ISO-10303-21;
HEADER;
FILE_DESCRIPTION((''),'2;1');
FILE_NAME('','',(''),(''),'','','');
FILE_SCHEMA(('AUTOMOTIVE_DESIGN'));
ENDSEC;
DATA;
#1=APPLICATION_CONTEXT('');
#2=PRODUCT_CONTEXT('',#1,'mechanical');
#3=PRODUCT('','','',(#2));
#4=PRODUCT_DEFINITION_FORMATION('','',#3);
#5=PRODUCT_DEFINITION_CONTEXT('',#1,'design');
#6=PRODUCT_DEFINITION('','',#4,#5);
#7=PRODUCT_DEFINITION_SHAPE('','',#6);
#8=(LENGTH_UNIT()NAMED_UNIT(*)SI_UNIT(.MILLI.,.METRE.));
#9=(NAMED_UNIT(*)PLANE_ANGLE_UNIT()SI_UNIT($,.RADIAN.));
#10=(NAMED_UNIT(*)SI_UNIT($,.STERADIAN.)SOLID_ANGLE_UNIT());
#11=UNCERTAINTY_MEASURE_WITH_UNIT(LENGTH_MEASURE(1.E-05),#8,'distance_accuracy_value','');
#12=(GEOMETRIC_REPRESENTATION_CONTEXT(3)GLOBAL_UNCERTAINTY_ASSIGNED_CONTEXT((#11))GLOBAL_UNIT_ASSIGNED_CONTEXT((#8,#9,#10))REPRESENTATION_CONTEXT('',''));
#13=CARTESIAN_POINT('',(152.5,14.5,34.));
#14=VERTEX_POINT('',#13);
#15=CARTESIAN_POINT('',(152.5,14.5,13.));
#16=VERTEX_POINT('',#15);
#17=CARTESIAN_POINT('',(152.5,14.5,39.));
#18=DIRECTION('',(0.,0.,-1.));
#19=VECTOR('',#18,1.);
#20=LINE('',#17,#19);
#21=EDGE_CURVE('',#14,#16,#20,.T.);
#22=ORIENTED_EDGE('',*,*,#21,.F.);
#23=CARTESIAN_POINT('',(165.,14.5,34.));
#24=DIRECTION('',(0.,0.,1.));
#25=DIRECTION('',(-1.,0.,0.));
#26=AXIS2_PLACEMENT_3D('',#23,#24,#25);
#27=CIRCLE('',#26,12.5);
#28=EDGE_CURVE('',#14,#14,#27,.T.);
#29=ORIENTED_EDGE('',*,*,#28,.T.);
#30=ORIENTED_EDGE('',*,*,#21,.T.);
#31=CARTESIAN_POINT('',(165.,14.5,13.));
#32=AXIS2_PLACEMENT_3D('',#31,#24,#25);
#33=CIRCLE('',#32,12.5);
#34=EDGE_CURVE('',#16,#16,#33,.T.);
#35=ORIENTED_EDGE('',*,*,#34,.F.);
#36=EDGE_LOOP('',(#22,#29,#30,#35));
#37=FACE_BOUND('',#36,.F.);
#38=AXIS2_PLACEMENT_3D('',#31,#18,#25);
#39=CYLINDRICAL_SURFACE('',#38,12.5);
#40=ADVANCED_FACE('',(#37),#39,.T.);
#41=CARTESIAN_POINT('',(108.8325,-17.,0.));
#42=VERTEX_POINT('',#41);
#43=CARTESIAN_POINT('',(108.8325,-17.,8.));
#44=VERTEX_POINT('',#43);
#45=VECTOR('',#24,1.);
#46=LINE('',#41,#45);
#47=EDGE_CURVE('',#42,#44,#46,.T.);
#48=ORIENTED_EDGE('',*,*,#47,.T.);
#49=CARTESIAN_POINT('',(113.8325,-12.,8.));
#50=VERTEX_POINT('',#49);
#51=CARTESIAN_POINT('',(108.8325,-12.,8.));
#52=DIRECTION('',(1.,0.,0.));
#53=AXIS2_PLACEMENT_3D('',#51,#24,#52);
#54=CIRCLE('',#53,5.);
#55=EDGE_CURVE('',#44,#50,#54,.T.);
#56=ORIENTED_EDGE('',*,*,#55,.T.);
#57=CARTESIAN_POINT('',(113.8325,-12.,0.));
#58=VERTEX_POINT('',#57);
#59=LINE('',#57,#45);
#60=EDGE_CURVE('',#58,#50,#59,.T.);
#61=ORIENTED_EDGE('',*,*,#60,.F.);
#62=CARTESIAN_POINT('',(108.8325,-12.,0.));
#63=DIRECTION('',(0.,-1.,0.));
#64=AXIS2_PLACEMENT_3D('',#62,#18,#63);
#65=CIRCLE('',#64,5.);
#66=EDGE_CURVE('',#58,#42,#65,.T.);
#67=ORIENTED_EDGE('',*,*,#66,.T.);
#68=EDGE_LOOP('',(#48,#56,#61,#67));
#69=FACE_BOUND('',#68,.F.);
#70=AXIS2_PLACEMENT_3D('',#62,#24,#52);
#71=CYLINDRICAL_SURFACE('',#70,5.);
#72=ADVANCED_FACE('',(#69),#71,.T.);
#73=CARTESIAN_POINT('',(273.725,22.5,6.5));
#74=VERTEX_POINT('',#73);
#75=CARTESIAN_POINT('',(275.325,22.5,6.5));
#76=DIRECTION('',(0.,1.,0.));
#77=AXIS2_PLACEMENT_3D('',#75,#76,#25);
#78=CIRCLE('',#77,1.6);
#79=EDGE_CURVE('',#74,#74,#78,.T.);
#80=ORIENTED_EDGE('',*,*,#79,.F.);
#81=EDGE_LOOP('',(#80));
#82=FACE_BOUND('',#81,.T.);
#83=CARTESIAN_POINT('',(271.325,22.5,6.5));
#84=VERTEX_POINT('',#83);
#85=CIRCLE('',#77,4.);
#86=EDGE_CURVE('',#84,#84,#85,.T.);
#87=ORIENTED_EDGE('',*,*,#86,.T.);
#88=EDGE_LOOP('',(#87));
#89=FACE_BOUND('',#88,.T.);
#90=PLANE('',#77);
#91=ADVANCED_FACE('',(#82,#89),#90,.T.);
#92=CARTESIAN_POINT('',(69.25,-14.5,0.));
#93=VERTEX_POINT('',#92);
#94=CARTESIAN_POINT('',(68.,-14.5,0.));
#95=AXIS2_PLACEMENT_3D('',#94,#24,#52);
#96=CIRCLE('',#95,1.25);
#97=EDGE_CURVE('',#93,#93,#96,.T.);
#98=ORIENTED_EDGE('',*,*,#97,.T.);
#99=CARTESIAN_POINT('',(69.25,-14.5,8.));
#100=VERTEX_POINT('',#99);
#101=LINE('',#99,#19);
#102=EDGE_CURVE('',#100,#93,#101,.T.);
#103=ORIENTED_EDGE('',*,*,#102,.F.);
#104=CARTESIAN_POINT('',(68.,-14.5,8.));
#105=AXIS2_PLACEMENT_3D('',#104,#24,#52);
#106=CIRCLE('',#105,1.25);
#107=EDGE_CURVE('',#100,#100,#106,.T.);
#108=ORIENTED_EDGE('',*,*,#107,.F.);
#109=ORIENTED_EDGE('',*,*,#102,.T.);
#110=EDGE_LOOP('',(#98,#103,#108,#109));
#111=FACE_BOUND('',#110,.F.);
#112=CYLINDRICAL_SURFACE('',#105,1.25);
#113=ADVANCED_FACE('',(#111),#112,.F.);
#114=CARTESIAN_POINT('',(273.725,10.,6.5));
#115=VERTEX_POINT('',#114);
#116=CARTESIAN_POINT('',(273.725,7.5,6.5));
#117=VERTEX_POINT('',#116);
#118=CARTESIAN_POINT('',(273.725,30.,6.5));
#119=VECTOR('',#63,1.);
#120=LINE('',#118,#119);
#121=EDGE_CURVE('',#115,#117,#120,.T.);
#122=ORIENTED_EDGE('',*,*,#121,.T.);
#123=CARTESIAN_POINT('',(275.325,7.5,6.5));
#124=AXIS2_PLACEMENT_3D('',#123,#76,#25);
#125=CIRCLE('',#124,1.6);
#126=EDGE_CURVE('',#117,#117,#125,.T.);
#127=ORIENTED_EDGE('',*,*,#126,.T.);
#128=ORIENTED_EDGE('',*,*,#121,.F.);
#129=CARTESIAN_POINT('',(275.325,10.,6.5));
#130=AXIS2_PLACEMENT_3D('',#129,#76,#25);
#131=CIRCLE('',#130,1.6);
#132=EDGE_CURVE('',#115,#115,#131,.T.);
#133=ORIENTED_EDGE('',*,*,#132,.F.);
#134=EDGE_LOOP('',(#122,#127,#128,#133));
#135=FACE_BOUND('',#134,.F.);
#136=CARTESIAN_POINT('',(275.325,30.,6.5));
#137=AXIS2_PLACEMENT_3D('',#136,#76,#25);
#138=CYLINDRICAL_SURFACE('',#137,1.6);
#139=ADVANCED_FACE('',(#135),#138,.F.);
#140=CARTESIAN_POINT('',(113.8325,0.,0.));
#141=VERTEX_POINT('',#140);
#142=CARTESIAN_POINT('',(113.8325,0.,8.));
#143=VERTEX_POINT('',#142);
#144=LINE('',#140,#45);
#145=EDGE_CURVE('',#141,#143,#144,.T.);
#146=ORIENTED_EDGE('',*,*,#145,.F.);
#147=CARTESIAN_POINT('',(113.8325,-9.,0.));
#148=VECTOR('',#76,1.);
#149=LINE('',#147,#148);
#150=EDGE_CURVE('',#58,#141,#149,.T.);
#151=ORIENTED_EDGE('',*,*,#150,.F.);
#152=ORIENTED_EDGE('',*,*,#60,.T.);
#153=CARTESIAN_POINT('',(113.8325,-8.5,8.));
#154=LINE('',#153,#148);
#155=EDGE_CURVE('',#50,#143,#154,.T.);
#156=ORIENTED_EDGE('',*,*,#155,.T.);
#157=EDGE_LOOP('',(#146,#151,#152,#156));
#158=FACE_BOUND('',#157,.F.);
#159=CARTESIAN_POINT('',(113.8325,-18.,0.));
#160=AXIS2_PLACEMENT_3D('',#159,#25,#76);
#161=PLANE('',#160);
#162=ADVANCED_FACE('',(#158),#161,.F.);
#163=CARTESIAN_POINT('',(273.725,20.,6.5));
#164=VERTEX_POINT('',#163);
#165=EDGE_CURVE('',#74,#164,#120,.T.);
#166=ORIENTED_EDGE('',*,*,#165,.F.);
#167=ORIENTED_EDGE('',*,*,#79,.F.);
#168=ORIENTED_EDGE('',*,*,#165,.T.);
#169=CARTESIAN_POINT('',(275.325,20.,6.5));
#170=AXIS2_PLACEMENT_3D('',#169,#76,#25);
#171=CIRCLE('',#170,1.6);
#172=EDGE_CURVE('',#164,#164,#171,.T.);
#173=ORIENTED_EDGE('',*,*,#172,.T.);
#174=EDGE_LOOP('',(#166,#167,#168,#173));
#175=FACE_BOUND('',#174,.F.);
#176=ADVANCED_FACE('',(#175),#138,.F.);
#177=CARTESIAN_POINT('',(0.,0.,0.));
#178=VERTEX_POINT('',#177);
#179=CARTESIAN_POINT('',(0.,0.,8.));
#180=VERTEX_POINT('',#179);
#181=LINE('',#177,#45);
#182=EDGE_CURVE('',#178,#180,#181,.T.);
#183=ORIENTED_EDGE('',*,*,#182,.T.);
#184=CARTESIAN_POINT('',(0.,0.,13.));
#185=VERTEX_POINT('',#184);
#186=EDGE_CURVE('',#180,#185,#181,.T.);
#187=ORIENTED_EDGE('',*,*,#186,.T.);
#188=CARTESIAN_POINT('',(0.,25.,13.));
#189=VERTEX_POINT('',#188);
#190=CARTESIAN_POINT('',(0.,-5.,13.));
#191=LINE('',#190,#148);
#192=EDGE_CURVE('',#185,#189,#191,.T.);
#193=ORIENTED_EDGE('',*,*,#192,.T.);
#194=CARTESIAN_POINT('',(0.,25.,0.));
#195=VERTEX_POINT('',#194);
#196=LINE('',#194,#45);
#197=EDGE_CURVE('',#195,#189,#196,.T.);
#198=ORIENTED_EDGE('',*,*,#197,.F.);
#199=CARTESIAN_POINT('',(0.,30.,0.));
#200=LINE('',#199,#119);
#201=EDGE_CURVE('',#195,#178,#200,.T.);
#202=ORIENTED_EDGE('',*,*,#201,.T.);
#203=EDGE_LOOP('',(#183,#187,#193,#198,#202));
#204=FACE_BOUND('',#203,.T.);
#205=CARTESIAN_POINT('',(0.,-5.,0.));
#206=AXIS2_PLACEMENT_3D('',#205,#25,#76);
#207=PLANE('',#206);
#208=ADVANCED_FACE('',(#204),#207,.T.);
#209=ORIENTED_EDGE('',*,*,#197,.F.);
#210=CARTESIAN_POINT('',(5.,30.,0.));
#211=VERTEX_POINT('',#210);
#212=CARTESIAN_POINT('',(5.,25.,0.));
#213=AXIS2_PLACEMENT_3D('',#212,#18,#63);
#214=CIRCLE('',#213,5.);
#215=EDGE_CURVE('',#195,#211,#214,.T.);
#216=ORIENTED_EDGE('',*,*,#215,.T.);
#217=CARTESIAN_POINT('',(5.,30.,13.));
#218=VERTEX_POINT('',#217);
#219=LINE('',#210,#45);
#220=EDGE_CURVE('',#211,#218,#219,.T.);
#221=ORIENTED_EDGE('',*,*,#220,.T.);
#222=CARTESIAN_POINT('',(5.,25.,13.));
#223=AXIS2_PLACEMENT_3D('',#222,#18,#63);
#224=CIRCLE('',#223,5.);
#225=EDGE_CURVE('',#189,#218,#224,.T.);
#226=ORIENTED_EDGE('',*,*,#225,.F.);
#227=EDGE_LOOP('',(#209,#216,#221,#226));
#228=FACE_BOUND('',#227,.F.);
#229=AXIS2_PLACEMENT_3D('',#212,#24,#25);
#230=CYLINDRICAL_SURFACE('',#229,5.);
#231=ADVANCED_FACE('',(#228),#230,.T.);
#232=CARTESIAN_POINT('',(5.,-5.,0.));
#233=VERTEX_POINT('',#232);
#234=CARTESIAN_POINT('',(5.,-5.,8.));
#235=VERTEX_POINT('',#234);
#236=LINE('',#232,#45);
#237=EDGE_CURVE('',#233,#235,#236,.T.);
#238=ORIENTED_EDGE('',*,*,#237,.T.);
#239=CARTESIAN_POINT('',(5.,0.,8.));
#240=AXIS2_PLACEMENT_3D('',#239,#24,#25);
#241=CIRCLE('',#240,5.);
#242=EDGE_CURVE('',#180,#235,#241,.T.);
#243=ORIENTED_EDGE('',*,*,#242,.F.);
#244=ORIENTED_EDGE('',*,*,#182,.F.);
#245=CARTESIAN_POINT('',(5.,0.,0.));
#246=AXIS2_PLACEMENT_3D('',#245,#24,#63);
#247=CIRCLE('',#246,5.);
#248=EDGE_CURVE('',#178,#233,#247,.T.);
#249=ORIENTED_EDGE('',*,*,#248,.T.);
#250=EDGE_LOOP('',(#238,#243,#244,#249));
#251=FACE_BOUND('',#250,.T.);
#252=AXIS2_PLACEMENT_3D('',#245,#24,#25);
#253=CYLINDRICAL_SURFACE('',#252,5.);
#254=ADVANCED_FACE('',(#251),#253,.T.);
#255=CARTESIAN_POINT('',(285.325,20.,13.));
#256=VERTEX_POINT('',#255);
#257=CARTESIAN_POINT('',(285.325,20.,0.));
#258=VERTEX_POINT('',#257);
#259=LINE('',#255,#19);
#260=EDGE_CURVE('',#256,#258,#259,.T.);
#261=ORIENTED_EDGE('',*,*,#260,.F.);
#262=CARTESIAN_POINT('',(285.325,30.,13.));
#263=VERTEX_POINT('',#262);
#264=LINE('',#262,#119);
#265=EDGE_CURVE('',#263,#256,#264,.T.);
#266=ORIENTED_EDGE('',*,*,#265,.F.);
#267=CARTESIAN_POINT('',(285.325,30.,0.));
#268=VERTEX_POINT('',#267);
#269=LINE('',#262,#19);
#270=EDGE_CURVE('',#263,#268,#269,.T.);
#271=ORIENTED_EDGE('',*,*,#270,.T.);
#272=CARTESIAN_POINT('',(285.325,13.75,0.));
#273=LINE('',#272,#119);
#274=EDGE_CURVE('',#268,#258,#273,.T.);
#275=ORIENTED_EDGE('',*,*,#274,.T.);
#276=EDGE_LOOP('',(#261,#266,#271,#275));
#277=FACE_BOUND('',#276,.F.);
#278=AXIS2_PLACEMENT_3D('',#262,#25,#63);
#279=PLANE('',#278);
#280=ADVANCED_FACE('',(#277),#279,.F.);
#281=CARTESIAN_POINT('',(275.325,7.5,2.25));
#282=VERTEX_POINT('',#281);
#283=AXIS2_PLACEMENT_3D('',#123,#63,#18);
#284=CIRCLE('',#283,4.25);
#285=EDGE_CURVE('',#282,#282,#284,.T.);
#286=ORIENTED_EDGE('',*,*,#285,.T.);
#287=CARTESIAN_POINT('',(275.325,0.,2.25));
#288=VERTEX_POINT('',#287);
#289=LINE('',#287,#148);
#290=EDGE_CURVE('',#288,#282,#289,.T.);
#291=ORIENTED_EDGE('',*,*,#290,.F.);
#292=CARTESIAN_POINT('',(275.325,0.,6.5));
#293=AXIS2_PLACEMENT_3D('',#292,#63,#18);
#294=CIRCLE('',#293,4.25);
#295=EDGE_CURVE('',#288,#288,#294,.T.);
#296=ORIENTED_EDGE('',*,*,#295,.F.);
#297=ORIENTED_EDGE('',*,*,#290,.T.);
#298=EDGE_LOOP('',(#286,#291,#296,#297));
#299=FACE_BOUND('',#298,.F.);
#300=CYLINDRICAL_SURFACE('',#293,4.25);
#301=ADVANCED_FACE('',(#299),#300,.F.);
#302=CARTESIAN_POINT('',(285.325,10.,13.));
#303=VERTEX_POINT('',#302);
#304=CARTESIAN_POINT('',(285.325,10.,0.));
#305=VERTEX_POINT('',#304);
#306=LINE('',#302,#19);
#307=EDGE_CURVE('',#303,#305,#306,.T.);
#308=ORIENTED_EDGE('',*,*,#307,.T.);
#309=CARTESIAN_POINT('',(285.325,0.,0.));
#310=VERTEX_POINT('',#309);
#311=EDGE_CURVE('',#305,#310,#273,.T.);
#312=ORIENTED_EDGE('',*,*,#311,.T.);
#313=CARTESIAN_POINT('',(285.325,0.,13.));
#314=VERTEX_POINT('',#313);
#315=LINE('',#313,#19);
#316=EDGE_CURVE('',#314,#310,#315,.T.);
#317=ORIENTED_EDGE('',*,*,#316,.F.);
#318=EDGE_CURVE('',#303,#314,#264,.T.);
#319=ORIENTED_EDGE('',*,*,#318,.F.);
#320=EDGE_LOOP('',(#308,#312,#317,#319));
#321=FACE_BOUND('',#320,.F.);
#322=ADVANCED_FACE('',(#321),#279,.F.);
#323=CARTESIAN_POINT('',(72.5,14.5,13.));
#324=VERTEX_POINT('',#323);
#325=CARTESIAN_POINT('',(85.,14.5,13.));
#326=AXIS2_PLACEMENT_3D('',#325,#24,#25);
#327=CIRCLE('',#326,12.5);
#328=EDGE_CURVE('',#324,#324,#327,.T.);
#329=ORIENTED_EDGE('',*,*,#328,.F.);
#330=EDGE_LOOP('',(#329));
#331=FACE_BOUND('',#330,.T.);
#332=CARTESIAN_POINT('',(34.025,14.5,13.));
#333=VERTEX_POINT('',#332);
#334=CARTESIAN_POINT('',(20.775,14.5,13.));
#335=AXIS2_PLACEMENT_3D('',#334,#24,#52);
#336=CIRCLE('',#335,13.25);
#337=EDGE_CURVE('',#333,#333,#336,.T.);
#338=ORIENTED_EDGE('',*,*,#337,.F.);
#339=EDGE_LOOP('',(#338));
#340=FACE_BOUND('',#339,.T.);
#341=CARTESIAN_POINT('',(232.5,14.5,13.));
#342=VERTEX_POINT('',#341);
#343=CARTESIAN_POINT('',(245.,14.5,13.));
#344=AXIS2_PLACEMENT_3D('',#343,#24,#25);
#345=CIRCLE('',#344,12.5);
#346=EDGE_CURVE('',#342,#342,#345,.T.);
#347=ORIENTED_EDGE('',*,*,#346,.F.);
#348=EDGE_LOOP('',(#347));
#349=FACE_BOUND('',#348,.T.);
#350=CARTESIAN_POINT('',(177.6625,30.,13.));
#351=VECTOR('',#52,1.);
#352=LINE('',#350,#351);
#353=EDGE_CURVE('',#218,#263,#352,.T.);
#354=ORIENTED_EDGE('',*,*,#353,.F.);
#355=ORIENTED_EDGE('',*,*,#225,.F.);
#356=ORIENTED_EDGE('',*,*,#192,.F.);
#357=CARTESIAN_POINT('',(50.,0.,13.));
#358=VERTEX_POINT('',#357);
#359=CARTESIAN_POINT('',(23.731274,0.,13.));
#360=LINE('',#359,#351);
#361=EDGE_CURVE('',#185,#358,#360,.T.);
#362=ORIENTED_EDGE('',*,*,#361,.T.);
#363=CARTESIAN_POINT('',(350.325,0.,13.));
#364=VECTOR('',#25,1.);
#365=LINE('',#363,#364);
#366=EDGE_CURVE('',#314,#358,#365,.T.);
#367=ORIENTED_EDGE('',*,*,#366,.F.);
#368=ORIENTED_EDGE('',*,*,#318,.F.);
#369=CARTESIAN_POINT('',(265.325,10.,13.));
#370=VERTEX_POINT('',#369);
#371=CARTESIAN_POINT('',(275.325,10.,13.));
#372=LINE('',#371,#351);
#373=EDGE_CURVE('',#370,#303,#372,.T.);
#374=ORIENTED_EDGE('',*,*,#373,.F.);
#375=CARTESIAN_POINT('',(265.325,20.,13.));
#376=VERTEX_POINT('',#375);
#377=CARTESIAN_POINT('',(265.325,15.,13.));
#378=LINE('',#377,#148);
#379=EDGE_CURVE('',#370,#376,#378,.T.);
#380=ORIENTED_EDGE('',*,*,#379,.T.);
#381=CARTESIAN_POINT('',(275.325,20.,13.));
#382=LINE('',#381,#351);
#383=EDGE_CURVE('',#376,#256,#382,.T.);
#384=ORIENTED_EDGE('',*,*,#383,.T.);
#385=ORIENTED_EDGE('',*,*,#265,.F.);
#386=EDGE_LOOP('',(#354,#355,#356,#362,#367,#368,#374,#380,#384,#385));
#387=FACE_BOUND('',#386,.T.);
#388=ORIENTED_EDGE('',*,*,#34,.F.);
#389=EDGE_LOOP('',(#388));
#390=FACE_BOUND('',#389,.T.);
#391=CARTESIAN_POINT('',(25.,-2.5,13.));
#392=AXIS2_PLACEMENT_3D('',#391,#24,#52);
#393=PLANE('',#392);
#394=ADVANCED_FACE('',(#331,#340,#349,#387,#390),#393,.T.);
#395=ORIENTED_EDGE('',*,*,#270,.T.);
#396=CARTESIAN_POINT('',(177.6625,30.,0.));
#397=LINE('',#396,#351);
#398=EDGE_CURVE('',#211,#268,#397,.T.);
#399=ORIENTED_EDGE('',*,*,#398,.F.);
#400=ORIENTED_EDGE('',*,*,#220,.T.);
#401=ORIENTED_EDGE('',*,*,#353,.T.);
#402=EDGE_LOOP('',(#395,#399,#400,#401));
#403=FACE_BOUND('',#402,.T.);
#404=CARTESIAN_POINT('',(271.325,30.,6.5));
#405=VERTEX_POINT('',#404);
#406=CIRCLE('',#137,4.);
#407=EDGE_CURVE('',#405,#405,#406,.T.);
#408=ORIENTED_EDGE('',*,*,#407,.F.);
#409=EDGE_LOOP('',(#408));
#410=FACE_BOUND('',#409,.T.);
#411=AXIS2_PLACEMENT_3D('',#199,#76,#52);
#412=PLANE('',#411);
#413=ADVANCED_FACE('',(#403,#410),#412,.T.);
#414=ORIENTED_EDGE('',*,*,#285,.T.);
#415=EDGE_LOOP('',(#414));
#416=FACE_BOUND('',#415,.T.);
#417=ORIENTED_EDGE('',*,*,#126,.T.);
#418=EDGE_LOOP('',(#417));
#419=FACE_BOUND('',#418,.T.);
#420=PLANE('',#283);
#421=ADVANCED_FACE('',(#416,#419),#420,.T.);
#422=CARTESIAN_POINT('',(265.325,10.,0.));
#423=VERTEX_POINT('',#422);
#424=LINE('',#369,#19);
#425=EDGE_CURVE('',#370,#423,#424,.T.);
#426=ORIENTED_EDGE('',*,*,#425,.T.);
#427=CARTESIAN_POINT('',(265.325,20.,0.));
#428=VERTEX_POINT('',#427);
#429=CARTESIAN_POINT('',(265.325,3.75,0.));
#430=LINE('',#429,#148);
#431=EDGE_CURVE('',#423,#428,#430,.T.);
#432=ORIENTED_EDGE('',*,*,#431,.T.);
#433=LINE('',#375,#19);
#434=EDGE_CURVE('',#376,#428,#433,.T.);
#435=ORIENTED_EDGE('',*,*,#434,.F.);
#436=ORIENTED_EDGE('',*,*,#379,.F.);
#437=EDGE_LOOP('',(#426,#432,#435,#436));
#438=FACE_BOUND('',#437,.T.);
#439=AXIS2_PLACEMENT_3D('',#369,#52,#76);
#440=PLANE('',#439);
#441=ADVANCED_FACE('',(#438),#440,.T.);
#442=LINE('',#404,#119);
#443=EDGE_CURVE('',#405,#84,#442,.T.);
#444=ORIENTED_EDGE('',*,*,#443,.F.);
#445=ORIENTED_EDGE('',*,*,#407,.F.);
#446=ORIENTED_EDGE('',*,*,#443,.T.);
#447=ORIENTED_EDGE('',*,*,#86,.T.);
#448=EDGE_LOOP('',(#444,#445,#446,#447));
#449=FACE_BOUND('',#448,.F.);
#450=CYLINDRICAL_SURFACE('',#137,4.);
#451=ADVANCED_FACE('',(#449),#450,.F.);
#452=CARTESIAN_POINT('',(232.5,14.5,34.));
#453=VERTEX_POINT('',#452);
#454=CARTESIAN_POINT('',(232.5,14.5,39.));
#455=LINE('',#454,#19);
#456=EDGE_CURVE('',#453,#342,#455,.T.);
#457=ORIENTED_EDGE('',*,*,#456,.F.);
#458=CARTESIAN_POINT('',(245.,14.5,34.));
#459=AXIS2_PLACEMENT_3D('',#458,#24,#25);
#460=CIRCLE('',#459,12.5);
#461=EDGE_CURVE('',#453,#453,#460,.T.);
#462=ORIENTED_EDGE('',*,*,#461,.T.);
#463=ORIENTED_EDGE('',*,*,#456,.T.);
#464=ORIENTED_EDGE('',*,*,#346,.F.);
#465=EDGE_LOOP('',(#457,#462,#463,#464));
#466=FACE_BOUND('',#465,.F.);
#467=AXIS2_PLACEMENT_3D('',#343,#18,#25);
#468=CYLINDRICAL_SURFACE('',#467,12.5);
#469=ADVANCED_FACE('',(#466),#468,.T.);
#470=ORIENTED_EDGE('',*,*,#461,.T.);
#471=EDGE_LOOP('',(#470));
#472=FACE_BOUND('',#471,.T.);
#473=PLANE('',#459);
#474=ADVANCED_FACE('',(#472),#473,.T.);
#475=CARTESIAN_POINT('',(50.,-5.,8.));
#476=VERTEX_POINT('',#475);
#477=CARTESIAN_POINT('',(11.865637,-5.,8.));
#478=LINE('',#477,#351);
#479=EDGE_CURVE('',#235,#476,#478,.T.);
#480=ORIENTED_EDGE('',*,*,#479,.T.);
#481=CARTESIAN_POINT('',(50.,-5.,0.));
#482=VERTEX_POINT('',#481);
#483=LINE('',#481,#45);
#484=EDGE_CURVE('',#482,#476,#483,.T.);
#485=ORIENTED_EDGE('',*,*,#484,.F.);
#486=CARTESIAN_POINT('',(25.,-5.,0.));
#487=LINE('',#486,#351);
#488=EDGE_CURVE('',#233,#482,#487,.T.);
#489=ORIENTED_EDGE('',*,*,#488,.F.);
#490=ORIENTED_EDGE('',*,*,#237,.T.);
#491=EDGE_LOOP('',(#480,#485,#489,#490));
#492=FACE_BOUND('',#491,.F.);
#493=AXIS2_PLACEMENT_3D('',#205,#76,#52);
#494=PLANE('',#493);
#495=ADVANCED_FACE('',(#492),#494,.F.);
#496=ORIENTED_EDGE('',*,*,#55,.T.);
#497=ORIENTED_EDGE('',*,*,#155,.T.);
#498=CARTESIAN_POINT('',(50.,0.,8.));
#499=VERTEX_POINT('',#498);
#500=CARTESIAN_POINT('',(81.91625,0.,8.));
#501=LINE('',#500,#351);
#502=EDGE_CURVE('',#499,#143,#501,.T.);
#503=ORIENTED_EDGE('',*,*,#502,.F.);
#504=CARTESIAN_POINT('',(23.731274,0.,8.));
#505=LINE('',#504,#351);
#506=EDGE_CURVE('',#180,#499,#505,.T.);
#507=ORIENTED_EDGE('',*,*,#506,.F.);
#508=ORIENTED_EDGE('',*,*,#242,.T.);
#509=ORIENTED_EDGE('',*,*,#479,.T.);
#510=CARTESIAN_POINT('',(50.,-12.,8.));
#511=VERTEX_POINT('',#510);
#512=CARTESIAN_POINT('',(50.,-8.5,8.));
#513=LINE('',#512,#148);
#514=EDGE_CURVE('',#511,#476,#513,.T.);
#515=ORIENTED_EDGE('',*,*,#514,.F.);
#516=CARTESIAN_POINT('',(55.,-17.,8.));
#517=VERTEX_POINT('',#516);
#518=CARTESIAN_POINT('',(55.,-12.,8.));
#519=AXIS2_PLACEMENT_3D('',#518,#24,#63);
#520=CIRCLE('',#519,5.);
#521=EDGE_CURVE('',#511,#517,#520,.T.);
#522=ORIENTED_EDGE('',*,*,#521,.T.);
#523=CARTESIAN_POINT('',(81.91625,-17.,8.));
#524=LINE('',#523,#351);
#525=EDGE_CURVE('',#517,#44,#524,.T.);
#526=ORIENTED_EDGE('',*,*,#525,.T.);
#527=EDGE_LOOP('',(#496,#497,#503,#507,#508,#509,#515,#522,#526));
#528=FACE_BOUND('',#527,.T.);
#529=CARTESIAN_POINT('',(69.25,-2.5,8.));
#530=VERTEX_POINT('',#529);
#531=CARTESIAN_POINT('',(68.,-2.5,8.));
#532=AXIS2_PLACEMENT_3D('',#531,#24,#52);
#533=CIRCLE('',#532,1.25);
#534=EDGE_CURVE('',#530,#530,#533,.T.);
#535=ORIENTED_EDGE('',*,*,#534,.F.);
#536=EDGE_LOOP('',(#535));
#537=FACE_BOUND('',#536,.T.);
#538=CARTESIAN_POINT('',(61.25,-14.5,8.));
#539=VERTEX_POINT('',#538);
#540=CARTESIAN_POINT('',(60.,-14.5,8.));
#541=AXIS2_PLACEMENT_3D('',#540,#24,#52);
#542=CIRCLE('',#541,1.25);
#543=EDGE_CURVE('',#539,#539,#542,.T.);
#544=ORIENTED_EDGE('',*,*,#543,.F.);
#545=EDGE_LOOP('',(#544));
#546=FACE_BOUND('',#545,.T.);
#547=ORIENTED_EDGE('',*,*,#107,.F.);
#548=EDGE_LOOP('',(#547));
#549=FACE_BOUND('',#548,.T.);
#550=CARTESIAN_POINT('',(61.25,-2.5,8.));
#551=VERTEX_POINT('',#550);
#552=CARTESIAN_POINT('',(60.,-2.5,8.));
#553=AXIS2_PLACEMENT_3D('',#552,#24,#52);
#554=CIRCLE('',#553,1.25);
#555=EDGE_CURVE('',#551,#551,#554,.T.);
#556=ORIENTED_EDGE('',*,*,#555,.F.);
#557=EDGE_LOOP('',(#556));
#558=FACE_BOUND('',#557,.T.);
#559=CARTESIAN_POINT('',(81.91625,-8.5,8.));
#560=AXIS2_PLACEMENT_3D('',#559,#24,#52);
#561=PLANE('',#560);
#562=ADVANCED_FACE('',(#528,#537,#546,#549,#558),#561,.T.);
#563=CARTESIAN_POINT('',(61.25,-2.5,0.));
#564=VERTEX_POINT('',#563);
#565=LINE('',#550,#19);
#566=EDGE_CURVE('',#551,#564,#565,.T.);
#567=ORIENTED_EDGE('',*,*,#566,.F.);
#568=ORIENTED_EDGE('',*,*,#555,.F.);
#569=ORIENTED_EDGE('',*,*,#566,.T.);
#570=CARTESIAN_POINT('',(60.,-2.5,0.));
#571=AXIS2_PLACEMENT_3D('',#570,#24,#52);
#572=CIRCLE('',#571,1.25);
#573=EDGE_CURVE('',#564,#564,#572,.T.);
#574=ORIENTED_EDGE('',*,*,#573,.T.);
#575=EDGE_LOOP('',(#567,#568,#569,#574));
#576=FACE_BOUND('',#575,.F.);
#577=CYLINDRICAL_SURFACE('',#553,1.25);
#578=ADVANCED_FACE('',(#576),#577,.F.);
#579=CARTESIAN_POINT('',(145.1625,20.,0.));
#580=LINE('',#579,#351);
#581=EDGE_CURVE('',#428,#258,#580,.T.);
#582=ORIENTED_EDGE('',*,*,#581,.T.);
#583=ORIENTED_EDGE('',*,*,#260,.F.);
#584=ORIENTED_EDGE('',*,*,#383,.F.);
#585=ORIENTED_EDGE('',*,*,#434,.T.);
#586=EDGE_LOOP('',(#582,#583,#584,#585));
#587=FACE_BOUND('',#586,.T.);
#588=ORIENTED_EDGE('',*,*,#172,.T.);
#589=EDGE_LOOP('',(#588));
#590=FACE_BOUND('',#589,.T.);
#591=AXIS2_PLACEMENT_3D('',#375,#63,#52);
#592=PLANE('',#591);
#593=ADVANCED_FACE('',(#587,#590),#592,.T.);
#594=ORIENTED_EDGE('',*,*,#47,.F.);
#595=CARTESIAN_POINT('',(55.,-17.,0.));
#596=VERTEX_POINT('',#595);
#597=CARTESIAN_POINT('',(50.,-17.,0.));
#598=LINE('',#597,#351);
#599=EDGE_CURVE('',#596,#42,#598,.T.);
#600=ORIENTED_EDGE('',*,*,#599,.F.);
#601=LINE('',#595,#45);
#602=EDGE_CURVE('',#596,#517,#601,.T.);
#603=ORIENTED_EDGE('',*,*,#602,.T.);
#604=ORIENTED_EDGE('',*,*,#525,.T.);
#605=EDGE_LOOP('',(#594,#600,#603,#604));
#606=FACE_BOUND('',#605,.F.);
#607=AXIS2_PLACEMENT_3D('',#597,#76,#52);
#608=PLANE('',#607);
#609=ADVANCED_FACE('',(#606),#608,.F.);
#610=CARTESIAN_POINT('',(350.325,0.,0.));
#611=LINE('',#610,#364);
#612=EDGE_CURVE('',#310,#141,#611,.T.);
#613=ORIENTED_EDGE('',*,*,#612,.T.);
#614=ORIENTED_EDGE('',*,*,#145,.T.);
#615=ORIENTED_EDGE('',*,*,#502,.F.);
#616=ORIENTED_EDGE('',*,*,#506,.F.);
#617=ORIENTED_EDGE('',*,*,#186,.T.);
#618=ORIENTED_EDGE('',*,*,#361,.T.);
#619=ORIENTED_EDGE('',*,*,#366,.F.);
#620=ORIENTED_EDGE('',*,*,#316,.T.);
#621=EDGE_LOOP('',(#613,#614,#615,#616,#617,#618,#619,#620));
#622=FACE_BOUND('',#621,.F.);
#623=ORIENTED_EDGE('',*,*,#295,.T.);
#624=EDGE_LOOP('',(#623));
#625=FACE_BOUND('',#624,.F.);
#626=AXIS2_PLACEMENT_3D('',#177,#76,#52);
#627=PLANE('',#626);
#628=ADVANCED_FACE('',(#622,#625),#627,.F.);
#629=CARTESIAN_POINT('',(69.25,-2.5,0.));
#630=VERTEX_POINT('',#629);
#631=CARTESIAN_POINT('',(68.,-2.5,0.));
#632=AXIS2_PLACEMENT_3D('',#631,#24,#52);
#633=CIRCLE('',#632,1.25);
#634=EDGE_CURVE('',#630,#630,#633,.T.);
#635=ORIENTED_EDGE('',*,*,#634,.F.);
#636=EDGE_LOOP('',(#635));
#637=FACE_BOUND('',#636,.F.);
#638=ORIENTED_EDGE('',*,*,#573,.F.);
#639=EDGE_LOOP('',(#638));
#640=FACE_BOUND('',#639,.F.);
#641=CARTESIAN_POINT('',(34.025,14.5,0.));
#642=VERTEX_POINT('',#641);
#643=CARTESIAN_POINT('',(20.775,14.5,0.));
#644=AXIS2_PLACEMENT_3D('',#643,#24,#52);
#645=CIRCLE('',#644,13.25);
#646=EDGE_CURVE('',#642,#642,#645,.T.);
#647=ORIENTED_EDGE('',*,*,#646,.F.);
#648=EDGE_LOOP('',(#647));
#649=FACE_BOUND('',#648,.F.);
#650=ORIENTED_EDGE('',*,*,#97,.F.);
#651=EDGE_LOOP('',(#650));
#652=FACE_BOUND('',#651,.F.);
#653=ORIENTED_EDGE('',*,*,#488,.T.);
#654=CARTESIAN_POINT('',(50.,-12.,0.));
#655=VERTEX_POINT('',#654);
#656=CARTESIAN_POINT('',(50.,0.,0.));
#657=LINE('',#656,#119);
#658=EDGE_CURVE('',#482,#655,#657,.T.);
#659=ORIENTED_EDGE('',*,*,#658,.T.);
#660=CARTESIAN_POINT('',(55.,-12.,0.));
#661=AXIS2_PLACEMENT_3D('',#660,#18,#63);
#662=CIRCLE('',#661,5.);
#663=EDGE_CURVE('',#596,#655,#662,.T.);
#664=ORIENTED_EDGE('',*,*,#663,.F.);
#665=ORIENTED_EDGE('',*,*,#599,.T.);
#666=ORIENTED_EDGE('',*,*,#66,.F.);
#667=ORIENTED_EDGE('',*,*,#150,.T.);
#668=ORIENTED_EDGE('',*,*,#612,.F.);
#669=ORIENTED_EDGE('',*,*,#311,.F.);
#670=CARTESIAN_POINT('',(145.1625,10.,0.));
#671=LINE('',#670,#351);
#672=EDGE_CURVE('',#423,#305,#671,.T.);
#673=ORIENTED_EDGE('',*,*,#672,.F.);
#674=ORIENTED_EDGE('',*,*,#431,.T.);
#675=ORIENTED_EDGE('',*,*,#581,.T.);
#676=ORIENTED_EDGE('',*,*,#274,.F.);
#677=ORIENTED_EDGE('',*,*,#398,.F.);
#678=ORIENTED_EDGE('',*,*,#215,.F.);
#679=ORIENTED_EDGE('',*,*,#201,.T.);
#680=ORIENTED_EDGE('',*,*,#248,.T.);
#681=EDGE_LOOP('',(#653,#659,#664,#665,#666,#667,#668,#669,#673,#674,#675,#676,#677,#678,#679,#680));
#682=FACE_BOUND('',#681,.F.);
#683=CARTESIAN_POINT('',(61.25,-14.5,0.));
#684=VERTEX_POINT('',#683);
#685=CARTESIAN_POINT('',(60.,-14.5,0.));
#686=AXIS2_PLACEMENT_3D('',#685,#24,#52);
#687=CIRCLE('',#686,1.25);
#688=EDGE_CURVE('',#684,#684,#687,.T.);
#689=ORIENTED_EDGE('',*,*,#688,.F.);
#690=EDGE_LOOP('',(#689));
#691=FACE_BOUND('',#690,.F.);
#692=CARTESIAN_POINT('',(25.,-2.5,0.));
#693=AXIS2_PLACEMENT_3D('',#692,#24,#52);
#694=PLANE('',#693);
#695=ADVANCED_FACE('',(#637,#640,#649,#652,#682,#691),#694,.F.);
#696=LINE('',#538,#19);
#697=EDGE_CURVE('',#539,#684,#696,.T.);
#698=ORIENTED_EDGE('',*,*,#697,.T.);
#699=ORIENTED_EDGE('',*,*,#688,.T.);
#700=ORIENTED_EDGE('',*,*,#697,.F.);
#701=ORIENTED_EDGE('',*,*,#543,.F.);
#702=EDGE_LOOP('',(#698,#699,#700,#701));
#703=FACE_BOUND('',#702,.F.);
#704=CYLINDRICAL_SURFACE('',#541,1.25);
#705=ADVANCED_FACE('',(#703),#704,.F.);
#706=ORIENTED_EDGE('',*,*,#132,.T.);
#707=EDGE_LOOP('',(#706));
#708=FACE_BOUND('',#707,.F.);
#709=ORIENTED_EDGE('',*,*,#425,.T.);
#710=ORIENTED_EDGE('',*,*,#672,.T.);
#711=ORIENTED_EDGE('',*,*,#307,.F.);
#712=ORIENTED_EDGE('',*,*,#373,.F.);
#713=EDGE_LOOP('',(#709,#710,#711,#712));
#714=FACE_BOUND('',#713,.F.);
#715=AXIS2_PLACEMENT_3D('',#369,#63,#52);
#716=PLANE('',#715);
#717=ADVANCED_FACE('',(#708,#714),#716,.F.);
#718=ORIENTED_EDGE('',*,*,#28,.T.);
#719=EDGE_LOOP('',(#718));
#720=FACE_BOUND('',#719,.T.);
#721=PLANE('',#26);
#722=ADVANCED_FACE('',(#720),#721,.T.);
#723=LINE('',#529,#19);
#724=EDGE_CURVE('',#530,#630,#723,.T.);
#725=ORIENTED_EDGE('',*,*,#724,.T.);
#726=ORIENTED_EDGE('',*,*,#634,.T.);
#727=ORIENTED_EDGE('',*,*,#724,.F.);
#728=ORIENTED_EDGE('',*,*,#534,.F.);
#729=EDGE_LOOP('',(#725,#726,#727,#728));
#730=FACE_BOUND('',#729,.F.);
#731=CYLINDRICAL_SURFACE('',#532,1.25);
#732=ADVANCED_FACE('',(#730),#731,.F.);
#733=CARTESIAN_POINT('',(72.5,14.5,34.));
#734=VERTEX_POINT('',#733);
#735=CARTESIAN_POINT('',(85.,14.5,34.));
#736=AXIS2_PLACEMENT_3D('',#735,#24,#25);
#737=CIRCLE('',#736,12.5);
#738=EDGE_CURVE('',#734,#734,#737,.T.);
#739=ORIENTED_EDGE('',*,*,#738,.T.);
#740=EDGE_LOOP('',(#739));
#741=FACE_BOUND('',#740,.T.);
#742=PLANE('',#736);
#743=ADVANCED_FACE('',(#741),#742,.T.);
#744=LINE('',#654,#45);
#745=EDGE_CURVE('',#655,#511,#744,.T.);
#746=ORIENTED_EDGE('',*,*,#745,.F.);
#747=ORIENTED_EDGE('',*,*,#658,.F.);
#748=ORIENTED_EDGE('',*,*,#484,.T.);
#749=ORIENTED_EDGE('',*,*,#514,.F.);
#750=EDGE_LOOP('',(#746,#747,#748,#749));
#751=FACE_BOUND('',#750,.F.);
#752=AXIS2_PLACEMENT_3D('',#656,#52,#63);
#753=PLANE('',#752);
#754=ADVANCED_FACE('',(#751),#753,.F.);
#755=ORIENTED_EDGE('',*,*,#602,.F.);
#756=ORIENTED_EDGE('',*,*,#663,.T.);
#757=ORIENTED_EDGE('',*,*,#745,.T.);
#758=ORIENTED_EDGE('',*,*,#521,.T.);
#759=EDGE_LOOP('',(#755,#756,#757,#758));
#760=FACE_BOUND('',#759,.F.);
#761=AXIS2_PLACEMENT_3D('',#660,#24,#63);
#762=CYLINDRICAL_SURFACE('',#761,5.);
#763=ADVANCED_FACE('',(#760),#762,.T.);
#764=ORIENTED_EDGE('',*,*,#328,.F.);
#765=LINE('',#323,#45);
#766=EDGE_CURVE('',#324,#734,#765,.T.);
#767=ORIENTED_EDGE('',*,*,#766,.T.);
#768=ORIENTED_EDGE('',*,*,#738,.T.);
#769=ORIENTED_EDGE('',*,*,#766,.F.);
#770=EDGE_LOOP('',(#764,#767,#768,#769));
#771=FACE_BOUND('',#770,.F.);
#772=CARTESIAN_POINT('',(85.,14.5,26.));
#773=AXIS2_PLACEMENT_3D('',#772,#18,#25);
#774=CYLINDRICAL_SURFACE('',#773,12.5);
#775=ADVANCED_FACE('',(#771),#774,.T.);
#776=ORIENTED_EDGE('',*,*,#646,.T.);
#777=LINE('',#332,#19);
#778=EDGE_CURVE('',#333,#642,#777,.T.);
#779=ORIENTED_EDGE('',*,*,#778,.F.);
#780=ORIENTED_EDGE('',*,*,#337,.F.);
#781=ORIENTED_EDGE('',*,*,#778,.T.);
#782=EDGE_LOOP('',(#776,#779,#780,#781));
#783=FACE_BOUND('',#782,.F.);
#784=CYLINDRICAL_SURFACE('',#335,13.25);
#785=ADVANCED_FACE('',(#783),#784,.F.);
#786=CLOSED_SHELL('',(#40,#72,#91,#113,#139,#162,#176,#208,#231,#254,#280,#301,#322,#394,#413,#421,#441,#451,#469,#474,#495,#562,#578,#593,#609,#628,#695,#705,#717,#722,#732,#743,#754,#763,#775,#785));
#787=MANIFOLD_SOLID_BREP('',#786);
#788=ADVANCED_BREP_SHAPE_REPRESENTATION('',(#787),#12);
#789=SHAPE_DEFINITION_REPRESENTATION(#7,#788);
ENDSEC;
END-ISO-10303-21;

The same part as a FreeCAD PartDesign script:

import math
import FreeCAD as App
import Part
import Sketcher

V = App.Vector


def edges_at(feature, points):
    """Names of the edges that pass closest to the given points."""
    edges = feature.Shape.Edges
    near = lambda p: min(range(len(edges)), key=lambda i: edges[i].distToShape(Part.Vertex(*p))[0])
    return sorted({f"Edge{near(p) + 1}" for p in points})


def add_polygon(sketch, points):
    """Adds a closed chain of lines whose ends are joined by coincident constraints."""
    first, n = sketch.GeometryCount, len(points)
    for a, b in zip(points, points[1:] + points[:1]):
        sketch.addGeometry(Part.LineSegment(App.Vector(*a, 0), App.Vector(*b, 0)), False)
    for i in range(n):
        sketch.addConstraint(Sketcher.Constraint("Coincident", first + i, 2, first + (i + 1) % n, 1))

doc = App.newDocument("Part")
body = doc.addObject("PartDesign::Body", "Body")

# Sketch on XY plane
sketch1 = body.newObject("Sketcher::SketchObject", "Sketch")
sketch1.AttachmentSupport = (doc.getObject("XY_Plane"), [""])
sketch1.MapMode = "FlatFace"
add_polygon(sketch1, [(0, 30), (0, -5), (50, -5), (50, -17), (177.7, -17), (177.7, 0), (355.3, 0), (355.3, 30)])  # lines 0-7
sketch1.addGeometry(Part.Circle(V(20.8, 14.5, 0), V(0, 0, 1), 12.5), False)  # 8
sketch1.addGeometry(Part.Circle(V(334.6, 14.5, 0), V(0, 0, 1), 12.5), False)  # 9
sketch1.addGeometry(Part.Circle(V(68, -2.5, 0), V(0, 0, 1), 1), False)  # 10
sketch1.addGeometry(Part.Circle(V(60, -2.5, 0), V(0, 0, 1), 1), False)  # 11
sketch1.addGeometry(Part.Circle(V(60, -14.5, 0), V(0, 0, 1), 1), False)  # 12
sketch1.addGeometry(Part.Circle(V(68, -14.5, 0), V(0, 0, 1), 1), False)  # 13
sketch1.addConstraint([
    Sketcher.Constraint("Vertical", 0),
    Sketcher.Constraint("Horizontal", 1),
    Sketcher.Constraint("Vertical", 2),
    Sketcher.Constraint("Horizontal", 3),
    Sketcher.Constraint("Vertical", 4),
    Sketcher.Constraint("Horizontal", 5),
    Sketcher.Constraint("Vertical", 6),
    Sketcher.Constraint("Horizontal", 7),
    Sketcher.Constraint("Equal", 8, 9),
    Sketcher.Constraint("Equal", 10, 11),
    Sketcher.Constraint("Equal", 11, 12),
    Sketcher.Constraint("Equal", 12, 13),
    Sketcher.Constraint("PointOnObject", 0, 2, -2),
    Sketcher.Constraint("PointOnObject", 4, 2, -1),
    Sketcher.Constraint("Horizontal", 8, 3, 9, 3),
    Sketcher.Constraint("Horizontal", 10, 3, 11, 3),
    Sketcher.Constraint("Horizontal", 12, 3, 13, 3),
    Sketcher.Constraint("Vertical", 11, 3, 12, 3),
    Sketcher.Constraint("Vertical", 10, 3, 13, 3),
    Sketcher.Constraint("Diameter", 8, 25.0),
    Sketcher.Constraint("Diameter", 10, 2.0),
    Sketcher.Constraint("DistanceX", 1, 1, 1, 2, 50.0),
    Sketcher.Constraint("DistanceY", 0, 2, 0, 1, 35.0),
    Sketcher.Constraint("DistanceY", 2, 2, 2, 1, 12.0),
    Sketcher.Constraint("DistanceY", 4, 1, 4, 2, 17.0),
    Sketcher.Constraint("DistanceX", -1, 1, 10, 3, 68.0),
    Sketcher.Constraint("DistanceX", -1, 1, 11, 3, 60.0),
    Sketcher.Constraint("DistanceY", 10, 3, 8, 3, 17.0),
    Sketcher.Constraint("DistanceY", 12, 3, 11, 3, 12.0),
    Sketcher.Constraint("DistanceY", -1, 1, 8, 3, 14.5),
    Sketcher.Constraint("DistanceX", 7, 2, 7, 1, 355.325),
    Sketcher.Constraint("DistanceX", -1, 1, 9, 3, 334.55),
    Sketcher.Constraint("DistanceX", 3, 1, 3, 2, 127.6625),
    Sketcher.Constraint("DistanceX", -1, 1, 8, 3, 20.775),
])
pad1 = body.newObject("PartDesign::Pad", "Pad")
pad1.Profile = sketch1
pad1.Length = 13
doc.recompute()

fillet = body.newObject("PartDesign::Fillet", "Fillet")
fillet.Base = (pad1, edges_at(pad1, [
    (0, -5, 6.5),
    (0, 30, 6.5),
    (355.325, 30, 6.5),
    (355.325, 0, 6.5),
    (177.662, -17, 6.5),
    (50, -17, 6.5),
]))
fillet.Radius = 5

# Sketch on XY plane
sketch2 = body.newObject("Sketcher::SketchObject", "Sketch001")
sketch2.AttachmentSupport = (doc.getObject("XY_Plane"), [""])
sketch2.MapMode = "FlatFace"
sketch2.AttachmentOffset = App.Placement(V(0, 0, 13), App.Rotation())
sketch2.addGeometry([
    Part.Circle(V(85, 14, 0), V(0, 0, 1), 12),
    Part.Circle(V(165, 14, 0), V(0, 0, 1), 12),
    Part.Circle(V(245, 14, 0), V(0, 0, 1), 12),
], False)
sketch2.addConstraint([
    Sketcher.Constraint("Equal", 0, 1),
    Sketcher.Constraint("Equal", 1, 2),
    Sketcher.Constraint("Horizontal", 0, 3, 1, 3),
    Sketcher.Constraint("Horizontal", 1, 3, 2, 3),
    Sketcher.Constraint("Diameter", 0, 25.0),
    Sketcher.Constraint("DistanceX", -1, 1, 0, 3, 85.0),
    Sketcher.Constraint("DistanceX", -1, 1, 1, 3, 165.0),
    Sketcher.Constraint("DistanceX", -1, 1, 2, 3, 245.0),
    Sketcher.Constraint("DistanceY", -1, 1, 0, 3, 14.5),
])
pad2 = body.newObject("PartDesign::Pad", "Pad001")
pad2.Profile = sketch2
pad2.Length = 13

# Sketch on XY plane
sketch3 = body.newObject("Sketcher::SketchObject", "Sketch002")
sketch3.AttachmentSupport = (doc.getObject("XY_Plane"), [""])
sketch3.MapMode = "FlatFace"
sketch3.addGeometry(Part.Circle(V(68, -2.5, 0), V(0, 0, 1), 1.4), False)
sketch3.addConstraint([
    Sketcher.Constraint("Diameter", 0, 2.85),
    Sketcher.Constraint("DistanceX", -1, 1, 0, 3, 68.0),
    Sketcher.Constraint("DistanceY", 0, 3, -1, 1, 2.5),
])
pocket1 = body.newObject("PartDesign::Pocket", "Pocket")
pocket1.Profile = sketch3
pocket1.Length = 13
pocket1.Reversed = True

# Sketch on XY plane
sketch4 = body.newObject("Sketcher::SketchObject", "Sketch003")
sketch4.AttachmentSupport = (doc.getObject("XY_Plane"), [""])
sketch4.MapMode = "FlatFace"
sketch4.addGeometry(Part.Circle(V(60, -2.5, 0), V(0, 0, 1), 1.4), False)
sketch4.addConstraint([
    Sketcher.Constraint("Diameter", 0, 2.85),
    Sketcher.Constraint("DistanceX", -1, 1, 0, 3, 60.0),
    Sketcher.Constraint("DistanceY", 0, 3, -1, 1, 2.5),
])
pocket2 = body.newObject("PartDesign::Pocket", "Pocket001")
pocket2.Profile = sketch4
pocket2.Length = 13
pocket2.Reversed = True

# Sketch on XY plane
sketch5 = body.newObject("Sketcher::SketchObject", "Sketch004")
sketch5.AttachmentSupport = (doc.getObject("XY_Plane"), [""])
sketch5.MapMode = "FlatFace"
sketch5.addGeometry(Part.Circle(V(60, -14.5, 0), V(0, 0, 1), 1.4), False)
sketch5.addConstraint([
    Sketcher.Constraint("Diameter", 0, 2.85),
    Sketcher.Constraint("DistanceX", -1, 1, 0, 3, 60.0),
    Sketcher.Constraint("DistanceY", 0, 3, -1, 1, 14.5),
])
pocket3 = body.newObject("PartDesign::Pocket", "Pocket002")
pocket3.Profile = sketch5
pocket3.Length = 13
pocket3.Reversed = True

# Sketch on XY plane
sketch6 = body.newObject("Sketcher::SketchObject", "Sketch005")
sketch6.AttachmentSupport = (doc.getObject("XY_Plane"), [""])
sketch6.MapMode = "FlatFace"
sketch6.addGeometry(Part.Circle(V(68, -14.5, 0), V(0, 0, 1), 1.4), False)
sketch6.addConstraint([
    Sketcher.Constraint("Diameter", 0, 2.85),
    Sketcher.Constraint("DistanceX", -1, 1, 0, 3, 68.0),
    Sketcher.Constraint("DistanceY", 0, 3, -1, 1, 14.5),
])
pocket4 = body.newObject("PartDesign::Pocket", "Pocket003")
pocket4.Profile = sketch6
pocket4.Length = 13
pocket4.Reversed = True

# Sketch on XY plane
sketch7 = body.newObject("Sketcher::SketchObject", "Sketch006")
sketch7.AttachmentSupport = (doc.getObject("XY_Plane"), [""])
sketch7.MapMode = "FlatFace"
add_polygon(sketch7, [(178, 0), (178, -18), (114, -18), (114, 0)])  # lines 0-3
sketch7.addConstraint([
    Sketcher.Constraint("Vertical", 0),
    Sketcher.Constraint("Horizontal", 1),
    Sketcher.Constraint("Vertical", 2),
    Sketcher.Constraint("Horizontal", 3),
    Sketcher.Constraint("PointOnObject", 2, 2, -1),
    Sketcher.Constraint("DistanceY", 0, 2, 0, 1, 18.0),
    Sketcher.Constraint("DistanceX", 1, 2, 1, 1, 63.83),
    Sketcher.Constraint("DistanceX", -1, 1, 0, 2, 177.6625),
])
pocket5 = body.newObject("PartDesign::Pocket", "Pocket004")
pocket5.Profile = sketch7
pocket5.Type = "ThroughAll"
pocket5.Reversed = True
doc.recompute()

fillet2 = body.newObject("PartDesign::Fillet", "Fillet001")
fillet2.Base = (pocket5, edges_at(pocket5, [(113.832, -17, 6.5)]))
fillet2.Radius = 5

# Sketch on XY plane
sketch8 = body.newObject("Sketcher::SketchObject", "Sketch007")
sketch8.AttachmentSupport = (doc.getObject("XY_Plane"), [""])
sketch8.MapMode = "FlatFace"
sketch8.AttachmentOffset = App.Placement(V(0, 0, 13), App.Rotation())
add_polygon(sketch8, [(50, 0), (50, -17), (114, -17), (114, 0)])  # lines 0-3
sketch8.addConstraint([
    Sketcher.Constraint("Vertical", 0),
    Sketcher.Constraint("Horizontal", 1),
    Sketcher.Constraint("Vertical", 2),
    Sketcher.Constraint("Horizontal", 3),
    Sketcher.Constraint("PointOnObject", 2, 2, -1),
    Sketcher.Constraint("DistanceY", 0, 2, 0, 1, 17.0),
    Sketcher.Constraint("DistanceX", -1, 1, 0, 2, 50.0),
    Sketcher.Constraint("DistanceX", 1, 1, 1, 2, 63.8325),
])
pocket6 = body.newObject("PartDesign::Pocket", "Pocket005")
pocket6.Profile = sketch8
pocket6.Length = 5

# Sketch on XY plane
sketch9 = body.newObject("Sketcher::SketchObject", "Sketch008")
sketch9.AttachmentSupport = (doc.getObject("XY_Plane"), [""])
sketch9.MapMode = "FlatFace"
sketch9.AttachmentOffset = App.Placement(V(0, 0, 8), App.Rotation())
sketch9.addGeometry([
    Part.Circle(V(60, -14.5, 0), V(0, 0, 1), 2.2),  # 0
    Part.Circle(V(60, -14.5, 0), V(0, 0, 1), 1),  # 1
    Part.Circle(V(60, -2.5, 0), V(0, 0, 1), 2.1),  # 2
    Part.Circle(V(60, -2.5, 0), V(0, 0, 1), 1),  # 3
    Part.Circle(V(68, -2.5, 0), V(0, 0, 1), 1.9),  # 4
    Part.Circle(V(68, -2.5, 0), V(0, 0, 1), 1),  # 5
    Part.Circle(V(68, -14.5, 0), V(0, 0, 1), 2.4),  # 6
    Part.Circle(V(68, -14.5, 0), V(0, 0, 1), 1),  # 7
], False)
sketch9.addConstraint([
    Sketcher.Constraint("Coincident", 1, 3, 0, 3),
    Sketcher.Constraint("Coincident", 3, 3, 2, 3),
    Sketcher.Constraint("Coincident", 5, 3, 4, 3),
    Sketcher.Constraint("Coincident", 7, 3, 6, 3),
    Sketcher.Constraint("Equal", 1, 3),
    Sketcher.Constraint("Equal", 3, 5),
    Sketcher.Constraint("Equal", 5, 7),
    Sketcher.Constraint("Horizontal", 3, 3, 4, 3),
    Sketcher.Constraint("Horizontal", 1, 3, 6, 3),
    Sketcher.Constraint("Vertical", 1, 3, 2, 3),
    Sketcher.Constraint("Vertical", 5, 3, 6, 3),
    Sketcher.Constraint("Diameter", 1, 2.0),
    Sketcher.Constraint("DistanceX", -1, 1, 0, 3, 60.0),
    Sketcher.Constraint("DistanceX", -1, 1, 4, 3, 68.0),
    Sketcher.Constraint("DistanceY", 0, 3, 2, 3, 12.0),
    Sketcher.Constraint("DistanceY", 0, 3, -1, 1, 14.5),
    Sketcher.Constraint("Diameter", 2, 4.234271),
    Sketcher.Constraint("Diameter", 4, 3.832208),
    Sketcher.Constraint("Diameter", 0, 4.319128),
    Sketcher.Constraint("Diameter", 6, 4.831883),
])
pad3 = body.newObject("PartDesign::Pad", "Pad002")
pad3.Profile = sketch9
pad3.Length = 8
pad3.Reversed = True

# Sketch on XY plane
sketch10 = body.newObject("Sketcher::SketchObject", "Sketch009")
sketch10.AttachmentSupport = (doc.getObject("XY_Plane"), [""])
sketch10.MapMode = "FlatFace"
sketch10.AttachmentOffset = App.Placement(V(0, 0, 26), App.Rotation())
sketch10.addGeometry([
    Part.Circle(V(85, 14, 0), V(0, 0, 1), 12),
    Part.Circle(V(165, 14, 0), V(0, 0, 1), 12),
    Part.Circle(V(245, 14, 0), V(0, 0, 1), 12),
], False)
sketch10.addConstraint([
    Sketcher.Constraint("Equal", 0, 1),
    Sketcher.Constraint("Equal", 1, 2),
    Sketcher.Constraint("Horizontal", 0, 3, 1, 3),
    Sketcher.Constraint("Horizontal", 1, 3, 2, 3),
    Sketcher.Constraint("Diameter", 0, 25.0),
    Sketcher.Constraint("DistanceX", -1, 1, 0, 3, 85.0),
    Sketcher.Constraint("DistanceX", -1, 1, 1, 3, 165.0),
    Sketcher.Constraint("DistanceX", -1, 1, 2, 3, 245.0),
    Sketcher.Constraint("DistanceY", -1, 1, 0, 3, 14.5),
])
pad4 = body.newObject("PartDesign::Pad", "Pad003")
pad4.Profile = sketch10
pad4.Length = 13

# Sketch on XY plane
sketch11 = body.newObject("Sketcher::SketchObject", "Sketch010")
sketch11.AttachmentSupport = (doc.getObject("XY_Plane"), [""])
sketch11.MapMode = "FlatFace"
sketch11.AttachmentOffset = App.Placement(V(0, 0, 13), App.Rotation())
sketch11.addGeometry([
    Part.LineSegment(V(265, 20, 0), V(265, 10, 0)),  # 0
    Part.LineSegment(V(265, 10, 0), V(285, 10, 0)),  # 1
    Part.LineSegment(V(285, 10, 0), V(285, 0, 0)),  # 2
    Part.LineSegment(V(285, 0, 0), V(350, 0, 0)),  # 3
    Part.ArcOfCircle(Part.Circle(V(350, 5, 0), V(0, 0, 1), 5), math.radians(-90), math.radians(0)),  # 4
    Part.LineSegment(V(355, 5, 0), V(355, 25, 0)),  # 5
    Part.ArcOfCircle(Part.Circle(V(350, 25, 0), V(0, 0, 1), 5), math.radians(0), math.radians(90)),  # 6
    Part.LineSegment(V(350, 30, 0), V(285, 30, 0)),  # 7
    Part.LineSegment(V(285, 30, 0), V(285, 20, 0)),  # 8
    Part.LineSegment(V(285, 20, 0), V(265, 20, 0)),  # 9
    Part.Circle(V(335, 14, 0), V(0, 0, 1), 12),  # 10
], False)
sketch11.addConstraint([
    Sketcher.Constraint("Coincident", 0, 2, 1, 1),
    Sketcher.Constraint("Coincident", 1, 2, 2, 1),
    Sketcher.Constraint("Coincident", 2, 2, 3, 1),
    Sketcher.Constraint("Tangent", 3, 2, 4, 1),
    Sketcher.Constraint("Tangent", 4, 2, 5, 1),
    Sketcher.Constraint("Tangent", 5, 2, 6, 1),
    Sketcher.Constraint("Tangent", 6, 2, 7, 1),
    Sketcher.Constraint("Coincident", 7, 2, 8, 1),
    Sketcher.Constraint("Coincident", 8, 2, 9, 1),
    Sketcher.Constraint("Coincident", 9, 2, 0, 1),
    Sketcher.Constraint("Vertical", 0),
    Sketcher.Constraint("Horizontal", 1),
    Sketcher.Constraint("Vertical", 2),
    Sketcher.Constraint("Horizontal", 3),
    Sketcher.Constraint("Vertical", 5),
    Sketcher.Constraint("Horizontal", 7),
    Sketcher.Constraint("Vertical", 8),
    Sketcher.Constraint("Horizontal", 9),
    Sketcher.Constraint("Equal", 4, 6),
    Sketcher.Constraint("PointOnObject", 2, 2, -1),
    Sketcher.Constraint("Vertical", 2, 2, 7, 2),
    Sketcher.Constraint("Equal", 0, 2),
    Sketcher.Constraint("Equal", 9, 5),
    Sketcher.Constraint("Equal", 2, 8),
    Sketcher.Constraint("Diameter", 10, 25.0),
    Sketcher.Constraint("Radius", 4, 5.0),
    Sketcher.Constraint("DistanceX", 1, 1, 1, 2, 20.0),
    Sketcher.Constraint("DistanceX", 3, 1, 3, 2, 65.0),
    Sketcher.Constraint("DistanceY", -1, 1, 10, 3, 14.5),
    Sketcher.Constraint("DistanceX", -1, 1, 10, 3, 334.55),
    Sketcher.Constraint("DistanceX", -1, 1, 4, 3, 350.325),
])
pocket7 = body.newObject("PartDesign::Pocket", "Pocket006")
pocket7.Profile = sketch11
pocket7.Length = 358.53581

# Sketch on XY plane
sketch12 = body.newObject("Sketcher::SketchObject", "Sketch011")
sketch12.AttachmentSupport = (doc.getObject("XY_Plane"), [""])
sketch12.MapMode = "FlatFace"
sketch12.AttachmentOffset = App.Placement(V(0, 0, 13), App.Rotation())
sketch12.addGeometry(Part.Circle(V(21, 14, 0), V(0, 0, 1), 13), False)
sketch12.addConstraint([
    Sketcher.Constraint("Diameter", 0, 26.5),
    Sketcher.Constraint("DistanceY", -1, 1, 0, 3, 14.5),
    Sketcher.Constraint("DistanceX", -1, 1, 0, 3, 20.775),
])
pocket8 = body.newObject("PartDesign::Pocket", "Pocket007")
pocket8.Profile = sketch12
pocket8.Type = "ThroughAll"

# Sketch on XY plane
sketch13 = body.newObject("Sketcher::SketchObject", "Sketch012")
sketch13.AttachmentSupport = (doc.getObject("XY_Plane"), [""])
sketch13.MapMode = "FlatFace"
sketch13.AttachmentOffset = App.Placement(V(0, 0, 8), App.Rotation())
sketch13.addGeometry([
    Part.Circle(V(60, -2.5, 0), V(0, 0, 1), 1.2),
    Part.Circle(V(68, -2.5, 0), V(0, 0, 1), 1.2),
    Part.Circle(V(68, -14.5, 0), V(0, 0, 1), 1.2),
    Part.Circle(V(60, -14.5, 0), V(0, 0, 1), 1.2),
], False)
sketch13.addConstraint([
    Sketcher.Constraint("Equal", 0, 1),
    Sketcher.Constraint("Equal", 1, 2),
    Sketcher.Constraint("Equal", 2, 3),
    Sketcher.Constraint("Horizontal", 0, 3, 1, 3),
    Sketcher.Constraint("Horizontal", 2, 3, 3, 3),
    Sketcher.Constraint("Vertical", 1, 3, 2, 3),
    Sketcher.Constraint("Vertical", 0, 3, 3, 3),
    Sketcher.Constraint("Diameter", 0, 2.5),
    Sketcher.Constraint("DistanceX", -1, 1, 0, 3, 60.0),
    Sketcher.Constraint("DistanceX", -1, 1, 1, 3, 68.0),
    Sketcher.Constraint("DistanceY", 2, 3, 1, 3, 12.0),
    Sketcher.Constraint("DistanceY", 0, 3, -1, 1, 2.5),
])
pocket9 = body.newObject("PartDesign::Pocket", "Pocket008")
pocket9.Profile = sketch13
pocket9.Type = "ThroughAll"

# Sketch on XZ plane
sketch14 = body.newObject("Sketcher::SketchObject", "Sketch013")
sketch14.AttachmentSupport = (doc.getObject("XZ_Plane"), [""])
sketch14.MapMode = "FlatFace"
sketch14.AttachmentOffset = App.Placement(V(0, 0, -30), App.Rotation())
sketch14.addGeometry(Part.Circle(V(275.3, 6.5, 0), V(0, 0, 1), 1.6), False)
sketch14.addConstraint([
    Sketcher.Constraint("Diameter", 0, 3.2),
    Sketcher.Constraint("DistanceY", -1, 1, 0, 3, 6.5),
    Sketcher.Constraint("DistanceX", -1, 1, 0, 3, 275.325),
])
pocket10 = body.newObject("PartDesign::Pocket", "Pocket009")
pocket10.Profile = sketch14
pocket10.Type = "ThroughAll"
pocket10.Reversed = True

# Sketch on XZ plane
sketch15 = body.newObject("Sketcher::SketchObject", "Sketch014")
sketch15.AttachmentSupport = (doc.getObject("XZ_Plane"), [""])
sketch15.MapMode = "FlatFace"
sketch15.AttachmentOffset = App.Placement(V(0, 0, -30), App.Rotation())
sketch15.addGeometry(Part.Circle(V(275.3, 6.5, 0), V(0, 0, 1), 4), False)
sketch15.addConstraint([
    Sketcher.Constraint("Diameter", 0, 8.0),
    Sketcher.Constraint("DistanceY", -1, 1, 0, 3, 6.5),
    Sketcher.Constraint("DistanceX", -1, 1, 0, 3, 275.325),
])
pocket11 = body.newObject("PartDesign::Pocket", "Pocket010")
pocket11.Profile = sketch15
pocket11.Length = 7.5
pocket11.Reversed = True

# Sketch on XZ plane
sketch16 = body.newObject("Sketcher::SketchObject", "Sketch015")
sketch16.AttachmentSupport = (doc.getObject("XZ_Plane"), [""])
sketch16.MapMode = "FlatFace"
sketch16.addGeometry(Part.Circle(V(275.3, 6.5, 0), V(0, 0, 1), 4.2), False)
sketch16.addConstraint([
    Sketcher.Constraint("Diameter", 0, 8.5),
    Sketcher.Constraint("DistanceY", -1, 1, 0, 3, 6.5),
    Sketcher.Constraint("DistanceX", -1, 1, 0, 3, 275.325),
])
pocket12 = body.newObject("PartDesign::Pocket", "Pocket011")
pocket12.Profile = sketch16
pocket12.Length = 7.5

# Sketch on XY plane
sketch17 = body.newObject("Sketcher::SketchObject", "Sketch016")
sketch17.AttachmentSupport = (doc.getObject("XY_Plane"), [""])
sketch17.MapMode = "FlatFace"
sketch17.AttachmentOffset = App.Placement(V(0, 0, 13), App.Rotation())
add_polygon(sketch17, [(-3, 0), (-3, -18), (50, -18), (50, 0)])  # lines 0-3
sketch17.addConstraint([
    Sketcher.Constraint("Vertical", 0),
    Sketcher.Constraint("Horizontal", 1),
    Sketcher.Constraint("Vertical", 2),
    Sketcher.Constraint("Horizontal", 3),
    Sketcher.Constraint("PointOnObject", 2, 2, -1),
    Sketcher.Constraint("DistanceX", -1, 1, 1, 2, 50.0),
    Sketcher.Constraint("DistanceX", 1, 1, 1, 2, 52.537452),
    Sketcher.Constraint("DistanceY", 0, 2, 0, 1, 17.901984),
])
pocket13 = body.newObject("PartDesign::Pocket", "Pocket012")
pocket13.Profile = sketch17
pocket13.Length = 5

# Sketch on XY plane
sketch18 = body.newObject("Sketcher::SketchObject", "Sketch017")
sketch18.AttachmentSupport = (doc.getObject("XY_Plane"), [""])
sketch18.MapMode = "FlatFace"
sketch18.AttachmentOffset = App.Placement(V(0, 0, 34), App.Rotation())
sketch18.addGeometry([
    Part.Circle(V(85, 14, 0), V(0, 0, 1), 12),
    Part.Circle(V(165, 14, 0), V(0, 0, 1), 12),
    Part.Circle(V(245, 14, 0), V(0, 0, 1), 12),
], False)
sketch18.addConstraint([
    Sketcher.Constraint("Equal", 0, 1),
    Sketcher.Constraint("Equal", 1, 2),
    Sketcher.Constraint("Horizontal", 0, 3, 1, 3),
    Sketcher.Constraint("Horizontal", 1, 3, 2, 3),
    Sketcher.Constraint("Diameter", 0, 25.0),
    Sketcher.Constraint("DistanceX", -1, 1, 0, 3, 85.0),
    Sketcher.Constraint("DistanceX", -1, 1, 1, 3, 165.0),
    Sketcher.Constraint("DistanceX", -1, 1, 2, 3, 245.0),
    Sketcher.Constraint("DistanceY", -1, 1, 0, 3, 14.5),
])
pocket14 = body.newObject("PartDesign::Pocket", "Pocket013")
pocket14.Profile = sketch18
pocket14.Length = 5
pocket14.Reversed = True

doc.recompute()
